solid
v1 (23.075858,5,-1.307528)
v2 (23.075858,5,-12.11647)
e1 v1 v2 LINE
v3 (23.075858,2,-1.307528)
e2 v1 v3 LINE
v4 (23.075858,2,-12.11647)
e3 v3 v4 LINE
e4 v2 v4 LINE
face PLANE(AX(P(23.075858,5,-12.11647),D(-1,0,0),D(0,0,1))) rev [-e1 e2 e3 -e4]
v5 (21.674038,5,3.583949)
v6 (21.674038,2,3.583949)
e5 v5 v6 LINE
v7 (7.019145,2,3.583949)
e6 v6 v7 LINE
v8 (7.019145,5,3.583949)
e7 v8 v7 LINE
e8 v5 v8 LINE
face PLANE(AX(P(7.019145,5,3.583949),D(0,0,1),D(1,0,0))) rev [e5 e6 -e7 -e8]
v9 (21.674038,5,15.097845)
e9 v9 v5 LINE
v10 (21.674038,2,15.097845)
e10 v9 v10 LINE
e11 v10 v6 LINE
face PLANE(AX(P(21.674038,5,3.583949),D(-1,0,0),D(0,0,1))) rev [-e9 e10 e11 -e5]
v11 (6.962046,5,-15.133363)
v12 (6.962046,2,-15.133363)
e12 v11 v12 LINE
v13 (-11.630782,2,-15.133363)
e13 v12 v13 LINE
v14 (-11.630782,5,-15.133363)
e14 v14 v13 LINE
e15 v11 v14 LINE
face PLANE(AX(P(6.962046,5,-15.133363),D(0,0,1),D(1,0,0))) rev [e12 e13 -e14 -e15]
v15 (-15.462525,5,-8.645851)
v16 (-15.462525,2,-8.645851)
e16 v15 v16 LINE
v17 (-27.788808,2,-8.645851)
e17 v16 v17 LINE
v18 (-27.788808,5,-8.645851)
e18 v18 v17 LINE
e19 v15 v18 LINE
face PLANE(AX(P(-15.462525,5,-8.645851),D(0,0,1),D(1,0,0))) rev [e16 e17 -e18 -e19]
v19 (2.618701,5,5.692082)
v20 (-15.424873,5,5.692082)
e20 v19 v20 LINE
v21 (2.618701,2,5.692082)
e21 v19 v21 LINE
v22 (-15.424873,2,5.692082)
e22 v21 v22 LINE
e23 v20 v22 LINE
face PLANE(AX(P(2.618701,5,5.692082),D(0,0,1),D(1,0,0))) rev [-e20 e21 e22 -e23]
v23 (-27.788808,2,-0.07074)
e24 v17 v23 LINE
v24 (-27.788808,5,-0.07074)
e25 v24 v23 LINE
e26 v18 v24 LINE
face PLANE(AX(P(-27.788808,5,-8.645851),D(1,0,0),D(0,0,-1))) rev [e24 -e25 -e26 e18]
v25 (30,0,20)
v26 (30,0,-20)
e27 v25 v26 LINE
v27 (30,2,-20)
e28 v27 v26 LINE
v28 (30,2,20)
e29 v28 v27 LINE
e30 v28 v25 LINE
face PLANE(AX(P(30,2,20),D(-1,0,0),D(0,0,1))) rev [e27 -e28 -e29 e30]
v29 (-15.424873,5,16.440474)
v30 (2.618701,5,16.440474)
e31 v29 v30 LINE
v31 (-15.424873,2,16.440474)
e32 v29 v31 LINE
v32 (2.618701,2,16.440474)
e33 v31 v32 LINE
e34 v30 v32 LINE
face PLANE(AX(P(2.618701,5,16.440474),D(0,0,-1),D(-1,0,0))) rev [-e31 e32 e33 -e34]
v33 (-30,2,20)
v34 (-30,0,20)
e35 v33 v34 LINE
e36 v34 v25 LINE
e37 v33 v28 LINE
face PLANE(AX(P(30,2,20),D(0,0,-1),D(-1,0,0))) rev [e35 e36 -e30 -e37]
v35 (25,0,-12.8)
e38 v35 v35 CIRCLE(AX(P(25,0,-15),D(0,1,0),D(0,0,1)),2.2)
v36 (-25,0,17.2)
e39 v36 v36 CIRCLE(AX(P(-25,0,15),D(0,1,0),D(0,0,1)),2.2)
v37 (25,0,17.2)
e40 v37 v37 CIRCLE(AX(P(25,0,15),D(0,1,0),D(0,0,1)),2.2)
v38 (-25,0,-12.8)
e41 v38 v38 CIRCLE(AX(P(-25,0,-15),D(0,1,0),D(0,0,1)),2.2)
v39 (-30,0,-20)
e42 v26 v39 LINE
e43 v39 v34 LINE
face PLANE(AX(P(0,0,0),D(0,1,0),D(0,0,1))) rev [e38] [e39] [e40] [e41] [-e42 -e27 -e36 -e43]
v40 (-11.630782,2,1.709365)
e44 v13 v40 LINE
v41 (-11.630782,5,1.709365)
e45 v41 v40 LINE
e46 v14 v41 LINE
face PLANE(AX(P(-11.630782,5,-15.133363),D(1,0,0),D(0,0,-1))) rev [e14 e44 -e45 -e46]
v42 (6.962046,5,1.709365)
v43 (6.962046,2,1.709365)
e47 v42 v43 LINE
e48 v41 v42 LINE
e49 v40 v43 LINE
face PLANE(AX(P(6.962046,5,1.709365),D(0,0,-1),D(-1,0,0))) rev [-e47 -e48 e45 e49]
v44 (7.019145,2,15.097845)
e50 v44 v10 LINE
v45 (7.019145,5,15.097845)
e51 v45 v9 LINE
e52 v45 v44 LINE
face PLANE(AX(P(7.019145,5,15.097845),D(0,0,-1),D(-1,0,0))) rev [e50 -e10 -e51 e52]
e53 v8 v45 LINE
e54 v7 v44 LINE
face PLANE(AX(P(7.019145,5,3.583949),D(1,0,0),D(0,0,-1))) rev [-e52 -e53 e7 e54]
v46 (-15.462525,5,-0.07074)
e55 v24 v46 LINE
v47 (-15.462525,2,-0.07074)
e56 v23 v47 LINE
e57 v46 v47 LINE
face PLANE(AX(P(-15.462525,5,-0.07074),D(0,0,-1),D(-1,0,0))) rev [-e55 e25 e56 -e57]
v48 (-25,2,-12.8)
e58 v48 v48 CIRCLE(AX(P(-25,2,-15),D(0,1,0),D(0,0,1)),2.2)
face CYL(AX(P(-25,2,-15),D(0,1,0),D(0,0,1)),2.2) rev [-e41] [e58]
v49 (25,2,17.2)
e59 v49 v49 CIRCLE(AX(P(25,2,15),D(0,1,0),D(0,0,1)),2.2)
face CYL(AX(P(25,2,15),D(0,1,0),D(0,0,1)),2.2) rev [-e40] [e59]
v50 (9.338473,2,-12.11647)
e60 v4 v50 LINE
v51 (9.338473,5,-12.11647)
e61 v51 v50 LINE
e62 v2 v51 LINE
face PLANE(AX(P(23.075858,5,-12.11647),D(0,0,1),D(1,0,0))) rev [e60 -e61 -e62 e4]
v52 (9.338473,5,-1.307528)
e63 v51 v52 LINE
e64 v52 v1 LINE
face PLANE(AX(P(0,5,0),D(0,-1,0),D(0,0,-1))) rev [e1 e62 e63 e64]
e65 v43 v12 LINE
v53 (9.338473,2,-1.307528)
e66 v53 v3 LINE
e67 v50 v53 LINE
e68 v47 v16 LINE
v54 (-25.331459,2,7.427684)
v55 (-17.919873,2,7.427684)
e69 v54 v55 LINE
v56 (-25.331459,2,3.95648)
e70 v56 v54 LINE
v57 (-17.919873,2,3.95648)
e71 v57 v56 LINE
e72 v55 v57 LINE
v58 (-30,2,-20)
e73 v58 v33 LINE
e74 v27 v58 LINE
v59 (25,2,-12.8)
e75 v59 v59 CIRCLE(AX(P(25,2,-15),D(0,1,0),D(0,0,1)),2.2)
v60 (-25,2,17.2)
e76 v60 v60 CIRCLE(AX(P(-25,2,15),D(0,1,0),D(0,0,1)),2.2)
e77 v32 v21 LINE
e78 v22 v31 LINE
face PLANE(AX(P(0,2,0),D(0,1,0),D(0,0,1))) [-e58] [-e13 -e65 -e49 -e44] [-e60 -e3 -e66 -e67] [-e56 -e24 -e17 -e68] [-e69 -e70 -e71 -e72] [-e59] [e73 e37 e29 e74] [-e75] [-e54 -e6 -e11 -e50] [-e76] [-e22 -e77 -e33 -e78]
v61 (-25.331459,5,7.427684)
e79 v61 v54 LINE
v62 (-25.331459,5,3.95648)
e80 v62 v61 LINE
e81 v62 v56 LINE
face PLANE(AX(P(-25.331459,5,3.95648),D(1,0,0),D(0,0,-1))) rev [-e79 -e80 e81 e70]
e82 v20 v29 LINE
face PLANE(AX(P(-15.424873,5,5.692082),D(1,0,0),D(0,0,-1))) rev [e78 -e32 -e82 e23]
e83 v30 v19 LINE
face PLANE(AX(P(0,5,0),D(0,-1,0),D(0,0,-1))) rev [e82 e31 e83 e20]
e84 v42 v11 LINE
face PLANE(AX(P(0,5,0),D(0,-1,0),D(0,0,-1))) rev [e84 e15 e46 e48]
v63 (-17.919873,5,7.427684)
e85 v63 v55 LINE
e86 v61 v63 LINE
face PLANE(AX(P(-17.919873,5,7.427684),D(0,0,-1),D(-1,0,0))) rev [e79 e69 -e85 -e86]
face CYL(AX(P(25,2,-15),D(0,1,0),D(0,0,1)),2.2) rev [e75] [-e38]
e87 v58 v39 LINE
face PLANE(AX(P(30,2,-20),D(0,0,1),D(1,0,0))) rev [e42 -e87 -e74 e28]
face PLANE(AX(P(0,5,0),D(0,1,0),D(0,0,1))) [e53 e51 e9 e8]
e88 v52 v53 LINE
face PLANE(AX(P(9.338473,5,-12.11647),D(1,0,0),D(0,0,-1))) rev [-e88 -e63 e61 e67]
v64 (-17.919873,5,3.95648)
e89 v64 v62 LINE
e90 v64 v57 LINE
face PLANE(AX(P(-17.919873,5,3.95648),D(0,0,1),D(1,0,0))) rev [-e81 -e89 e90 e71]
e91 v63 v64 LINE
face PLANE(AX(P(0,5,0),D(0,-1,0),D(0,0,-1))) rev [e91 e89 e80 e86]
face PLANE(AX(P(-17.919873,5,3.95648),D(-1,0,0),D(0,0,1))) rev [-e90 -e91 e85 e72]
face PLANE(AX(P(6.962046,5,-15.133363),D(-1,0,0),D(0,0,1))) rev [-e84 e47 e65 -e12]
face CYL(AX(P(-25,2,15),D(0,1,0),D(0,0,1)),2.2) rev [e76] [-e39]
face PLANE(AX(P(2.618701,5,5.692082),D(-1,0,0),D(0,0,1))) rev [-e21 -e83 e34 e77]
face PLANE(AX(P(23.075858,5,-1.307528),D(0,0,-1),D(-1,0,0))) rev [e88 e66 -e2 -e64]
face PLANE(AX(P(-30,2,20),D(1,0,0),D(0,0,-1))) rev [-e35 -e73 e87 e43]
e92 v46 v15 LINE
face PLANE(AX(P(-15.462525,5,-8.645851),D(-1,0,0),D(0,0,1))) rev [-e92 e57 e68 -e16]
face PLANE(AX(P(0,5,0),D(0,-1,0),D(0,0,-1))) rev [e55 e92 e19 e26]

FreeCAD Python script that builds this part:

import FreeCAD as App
import Part
import Sketcher

doc = App.newDocument("Part")
body = doc.addObject("PartDesign::Body", "Body")

# Sketch on XZ plane
sketch1 = doc.addObject("Sketcher::SketchObject", "Sketch")
body.addObject(sketch1)
sketch1.AttachmentSupport = (doc.XZ_Plane, [""])
sketch1.MapMode = "FlatFace"
sketch1.addGeometry([
    Part.LineSegment(App.Vector(-30, -20, 0), App.Vector(-30, 20, 0)),
    Part.LineSegment(App.Vector(-30, 20, 0), App.Vector(30, 20, 0)),
    Part.LineSegment(App.Vector(30, 20, 0), App.Vector(30, -20, 0)),
    Part.LineSegment(App.Vector(30, -20, 0), App.Vector(-30, -20, 0)),
], False)
sketch1.addConstraint([
    Sketcher.Constraint("Coincident", 0, 2, 1, 1),
    Sketcher.Constraint("Coincident", 1, 2, 2, 1),
    Sketcher.Constraint("Coincident", 2, 2, 3, 1),
    Sketcher.Constraint("Coincident", 3, 2, 0, 1),
    Sketcher.Constraint("Vertical", 0),
    Sketcher.Constraint("Horizontal", 1),
    Sketcher.Constraint("Vertical", 2),
    Sketcher.Constraint("Horizontal", 3),
    Sketcher.Constraint("Symmetric", 0, 2, 2, 2, -1, 1),
    Sketcher.Constraint("DistanceX", 1, 1, 1, 2, 60.0),
    Sketcher.Constraint("DistanceY", 0, 1, 0, 2, 40.0),
])
pad1 = doc.addObject("PartDesign::Pad", "Pad")
body.addObject(pad1)
pad1.Profile = sketch1
pad1.Length = 2
pad1.Reversed = True

# Sketch on XZ plane
sketch2 = doc.addObject("Sketcher::SketchObject", "Sketch001")
body.addObject(sketch2)
sketch2.AttachmentSupport = (doc.XZ_Plane, [""])
sketch2.MapMode = "FlatFace"
sketch2.AttachmentOffset = App.Placement(App.Vector(0, 0, -2), App.Rotation())
sketch2.addGeometry([
    Part.LineSegment(App.Vector(-27.8, -8.6, 0), App.Vector(-27.8, -0.1, 0)),  # 0
    Part.LineSegment(App.Vector(-27.8, -0.1, 0), App.Vector(-15.5, -0.1, 0)),  # 1
    Part.LineSegment(App.Vector(-15.5, -0.1, 0), App.Vector(-15.5, -8.6, 0)),  # 2
    Part.LineSegment(App.Vector(-15.5, -8.6, 0), App.Vector(-27.8, -8.6, 0)),  # 3
    Part.LineSegment(App.Vector(9.3, -12.1, 0), App.Vector(9.3, -1.3, 0)),  # 4
    Part.LineSegment(App.Vector(9.3, -1.3, 0), App.Vector(23.1, -1.3, 0)),  # 5
    Part.LineSegment(App.Vector(23.1, -1.3, 0), App.Vector(23.1, -12.1, 0)),  # 6
    Part.LineSegment(App.Vector(23.1, -12.1, 0), App.Vector(9.3, -12.1, 0)),  # 7
    Part.LineSegment(App.Vector(-11.6, -15.1, 0), App.Vector(-11.6, 1.7, 0)),  # 8
    Part.LineSegment(App.Vector(-11.6, 1.7, 0), App.Vector(7, 1.7, 0)),  # 9
    Part.LineSegment(App.Vector(7, 1.7, 0), App.Vector(7, -15.1, 0)),  # 10
    Part.LineSegment(App.Vector(7, -15.1, 0), App.Vector(-11.6, -15.1, 0)),  # 11
    Part.LineSegment(App.Vector(-25.3, 4, 0), App.Vector(-25.3, 7.4, 0)),  # 12
    Part.LineSegment(App.Vector(-25.3, 7.4, 0), App.Vector(-17.9, 7.4, 0)),  # 13
    Part.LineSegment(App.Vector(-17.9, 7.4, 0), App.Vector(-17.9, 4, 0)),  # 14
    Part.LineSegment(App.Vector(-17.9, 4, 0), App.Vector(-25.3, 4, 0)),  # 15
    Part.LineSegment(App.Vector(7, 3.6, 0), App.Vector(7, 15.1, 0)),  # 16
    Part.LineSegment(App.Vector(7, 15.1, 0), App.Vector(21.7, 15.1, 0)),  # 17
    Part.LineSegment(App.Vector(21.7, 15.1, 0), App.Vector(21.7, 3.6, 0)),  # 18
    Part.LineSegment(App.Vector(21.7, 3.6, 0), App.Vector(7, 3.6, 0)),  # 19
    Part.LineSegment(App.Vector(-15.4, 5.7, 0), App.Vector(-15.4, 16.4, 0)),  # 20
    Part.LineSegment(App.Vector(-15.4, 16.4, 0), App.Vector(2.6, 16.4, 0)),  # 21
    Part.LineSegment(App.Vector(2.6, 16.4, 0), App.Vector(2.6, 5.7, 0)),  # 22
    Part.LineSegment(App.Vector(2.6, 5.7, 0), App.Vector(-15.4, 5.7, 0)),  # 23
], False)
sketch2.addConstraint([
    Sketcher.Constraint("Coincident", 0, 2, 1, 1),
    Sketcher.Constraint("Coincident", 1, 2, 2, 1),
    Sketcher.Constraint("Coincident", 2, 2, 3, 1),
    Sketcher.Constraint("Coincident", 3, 2, 0, 1),
    Sketcher.Constraint("Coincident", 4, 2, 5, 1),
    Sketcher.Constraint("Coincident", 5, 2, 6, 1),
    Sketcher.Constraint("Coincident", 6, 2, 7, 1),
    Sketcher.Constraint("Coincident", 7, 2, 4, 1),
    Sketcher.Constraint("Coincident", 8, 2, 9, 1),
    Sketcher.Constraint("Coincident", 9, 2, 10, 1),
    Sketcher.Constraint("Coincident", 10, 2, 11, 1),
    Sketcher.Constraint("Coincident", 11, 2, 8, 1),
    Sketcher.Constraint("Coincident", 12, 2, 13, 1),
    Sketcher.Constraint("Coincident", 13, 2, 14, 1),
    Sketcher.Constraint("Coincident", 14, 2, 15, 1),
    Sketcher.Constraint("Coincident", 15, 2, 12, 1),
    Sketcher.Constraint("Coincident", 16, 2, 17, 1),
    Sketcher.Constraint("Coincident", 17, 2, 18, 1),
    Sketcher.Constraint("Coincident", 18, 2, 19, 1),
    Sketcher.Constraint("Coincident", 19, 2, 16, 1),
    Sketcher.Constraint("Coincident", 20, 2, 21, 1),
    Sketcher.Constraint("Coincident", 21, 2, 22, 1),
    Sketcher.Constraint("Coincident", 22, 2, 23, 1),
    Sketcher.Constraint("Coincident", 23, 2, 20, 1),
    Sketcher.Constraint("Vertical", 0),
    Sketcher.Constraint("Horizontal", 1),
    Sketcher.Constraint("Vertical", 2),
    Sketcher.Constraint("Horizontal", 3),
    Sketcher.Constraint("Vertical", 4),
    Sketcher.Constraint("Horizontal", 5),
    Sketcher.Constraint("Vertical", 6),
    Sketcher.Constraint("Horizontal", 7),
    Sketcher.Constraint("Vertical", 8),
    Sketcher.Constraint("Horizontal", 9),
    Sketcher.Constraint("Vertical", 10),
    Sketcher.Constraint("Horizontal", 11),
    Sketcher.Constraint("Vertical", 12),
    Sketcher.Constraint("Horizontal", 13),
    Sketcher.Constraint("Vertical", 14),
    Sketcher.Constraint("Horizontal", 15),
    Sketcher.Constraint("Vertical", 16),
    Sketcher.Constraint("Horizontal", 17),
    Sketcher.Constraint("Vertical", 18),
    Sketcher.Constraint("Horizontal", 19),
    Sketcher.Constraint("Vertical", 20),
    Sketcher.Constraint("Horizontal", 21),
    Sketcher.Constraint("Vertical", 22),
    Sketcher.Constraint("Horizontal", 23),
    Sketcher.Constraint("DistanceX", 13, 2, 20, 2, 2.495),
    Sketcher.Constraint("DistanceY", 4, 2, 21, 2, 17.748002),
    Sketcher.Constraint("DistanceX", 9, 1, 9, 2, 18.592828),
    Sketcher.Constraint("DistanceY", 0, 1, 0, 2, 8.575111),
    Sketcher.Constraint("DistanceY", 8, 1, 8, 2, 16.842728),
    Sketcher.Constraint("DistanceX", -1, 1, 21, 2, 2.618701),
    Sketcher.Constraint("DistanceX", 9, 2, 16, 2, 0.057099),
    Sketcher.Constraint("DistanceY", 23, 2, 13, 2, 1.735602),
    Sketcher.Constraint("DistanceY", 14, 2, 23, 2, 1.735602),
    Sketcher.Constraint("DistanceX", 1, 1, 1, 2, 12.326283),
    Sketcher.Constraint("DistanceX", 5, 1, 5, 2, 13.737385),
    Sketcher.Constraint("DistanceX", 13, 1, 13, 2, 7.411585),
    Sketcher.Constraint("DistanceX", 17, 1, 17, 2, 14.654893),
    Sketcher.Constraint("DistanceX", 21, 1, 21, 2, 18.043575),
    Sketcher.Constraint("DistanceY", 4, 1, 4, 2, 10.808943),
    Sketcher.Constraint("DistanceY", 16, 1, 16, 2, 11.513896),
    Sketcher.Constraint("DistanceY", 20, 1, 20, 2, 10.748392),
    Sketcher.Constraint("DistanceY", 0, 2, -1, 1, 0.07074),
    Sketcher.Constraint("DistanceY", 6, 2, -1, 1, 12.116471),
    Sketcher.Constraint("DistanceX", 8, 2, -1, 1, 11.630782),
    Sketcher.Constraint("DistanceY", -1, 1, 18, 2, 3.583949),
    Sketcher.Constraint("DistanceX", 0, 2, 4, 2, 37.127281),
    Sketcher.Constraint("DistanceX", 9, 2, 5, 2, 16.113811),
    Sketcher.Constraint("DistanceY", 8, 2, 12, 2, 5.718319),
])
pad2 = doc.addObject("PartDesign::Pad", "Pad001")
body.addObject(pad2)
pad2.Profile = sketch2
pad2.Length = 3
pad2.Reversed = True

# Sketch on XZ plane
sketch3 = doc.addObject("Sketcher::SketchObject", "Sketch002")
body.addObject(sketch3)
sketch3.AttachmentSupport = (doc.XZ_Plane, [""])
sketch3.MapMode = "FlatFace"
sketch3.AttachmentOffset = App.Placement(App.Vector(0, 0, -2), App.Rotation())
sketch3.addGeometry([
    Part.Circle(App.Vector(-25, -15, 0), App.Vector(0, 0, 1), 2.2),
    Part.Circle(App.Vector(25, -15, 0), App.Vector(0, 0, 1), 2.2),
    Part.Circle(App.Vector(25, 15, 0), App.Vector(0, 0, 1), 2.2),
    Part.Circle(App.Vector(-25, 15, 0), App.Vector(0, 0, 1), 2.2),
], False)
sketch3.addConstraint([
    Sketcher.Constraint("Equal", 0, 1),
    Sketcher.Constraint("Equal", 1, 2),
    Sketcher.Constraint("Equal", 2, 3),
    Sketcher.Constraint("Symmetric", 0, 3, 2, 3, -1, 1),
    Sketcher.Constraint("Symmetric", 1, 3, 3, 3, -1, 1),
    Sketcher.Constraint("Symmetric", 0, 3, 1, 3, -2),
    Sketcher.Constraint("Diameter", 0, 4.4),
    Sketcher.Constraint("DistanceX", 0, 3, -1, 1, 25.0),
    Sketcher.Constraint("DistanceY", 0, 3, -1, 1, 15.0),
])
doc.recompute()
hole = doc.addObject("PartDesign::Hole", "Hole")
body.addObject(hole)
hole.Profile = sketch3
hole.ThreadType = "None"
hole.Diameter = 4.4
hole.DepthType = "ThroughAll"
hole.Reversed = True

doc.recompute()
